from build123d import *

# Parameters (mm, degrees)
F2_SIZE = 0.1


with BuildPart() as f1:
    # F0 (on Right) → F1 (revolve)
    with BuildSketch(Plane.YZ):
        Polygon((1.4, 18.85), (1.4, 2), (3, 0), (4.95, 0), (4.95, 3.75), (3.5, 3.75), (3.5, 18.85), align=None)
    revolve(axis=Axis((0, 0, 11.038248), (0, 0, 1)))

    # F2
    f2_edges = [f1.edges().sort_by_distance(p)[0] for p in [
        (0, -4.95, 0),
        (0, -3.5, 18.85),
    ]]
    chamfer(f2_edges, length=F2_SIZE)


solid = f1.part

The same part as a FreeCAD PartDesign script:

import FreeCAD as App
import Part
import Sketcher

V = App.Vector
Q = App.Units.Quantity


def edges_at(feature, points):
    """Names of the edges that pass closest to the given points."""
    edges = feature.Shape.Edges
    near = lambda p: min(range(len(edges)), key=lambda i: edges[i].distToShape(Part.Vertex(*p))[0])
    return sorted({f"Edge{near(p) + 1}" for p in points})

doc = App.newDocument("Part")
params = doc.addObject("Spreadsheet::Sheet", "Params")
for row, (alias, value) in enumerate([
    ("sketch1_width", "2.1 mm"),
    ("sketch1_height", "15.1 mm"),
    ("sketch1_width2", "1.95 mm"),
    ("sketch1_width3", "1.45 mm"),
    ("sketch1_height2", "16.85 mm"),
    ("revolution_angle", "360 deg"),
    ("chamfer_size", "0.1 mm"),
], start=1):
    params.set(f"A{row}", alias)
    params.set(f"B{row}", "=" + value)
    params.setAlias(f"B{row}", alias)

body = doc.addObject("PartDesign::Body", "Body")

# Sketch on YZ plane
sketch1 = body.newObject("Sketcher::SketchObject", "Sketch")
sketch1.AttachmentSupport = (doc.getObject("YZ_Plane"), [""])
sketch1.MapMode = "FlatFace"
sketch1.addGeometry([
    Part.LineSegment(V(1.4, 18.9, 0), V(1.4, 2, 0)),  # 0
    Part.LineSegment(V(1.4, 2, 0), V(3, 0, 0)),  # 1
    Part.LineSegment(V(3, 0, 0), V(5, 0, 0)),  # 2
    Part.LineSegment(V(5, 0, 0), V(5, 3.8, 0)),  # 3
    Part.LineSegment(V(5, 3.8, 0), V(3.5, 3.8, 0)),  # 4
    Part.LineSegment(V(3.5, 3.8, 0), V(3.5, 18.9, 0)),  # 5
    Part.LineSegment(V(3.5, 18.9, 0), V(1.4, 18.9, 0)),  # 6
], False)
sketch1.addConstraint([
    Sketcher.Constraint("Coincident", 0, 2, 1, 1),
    Sketcher.Constraint("Coincident", 1, 2, 2, 1),
    Sketcher.Constraint("Coincident", 2, 2, 3, 1),
    Sketcher.Constraint("Coincident", 3, 2, 4, 1),
    Sketcher.Constraint("Coincident", 4, 2, 5, 1),
    Sketcher.Constraint("Coincident", 5, 2, 6, 1),
    Sketcher.Constraint("Coincident", 6, 2, 0, 1),
    Sketcher.Constraint("Vertical", 0),
    Sketcher.Constraint("Horizontal", 2),
    Sketcher.Constraint("Vertical", 3),
    Sketcher.Constraint("Horizontal", 4),
    Sketcher.Constraint("Vertical", 5),
    Sketcher.Constraint("Horizontal", 6),
    Sketcher.Constraint("PointOnObject", 1, 2, -1),
    Sketcher.Constraint("DistanceX", 6, 2, 6, 1, Q("2.1 mm")),
    Sketcher.Constraint("DistanceY", 5, 1, 5, 2, Q("15.1 mm")),
    Sketcher.Constraint("DistanceY", -1, 1, 0, 2, Q("2 mm")),
    Sketcher.Constraint("DistanceX", -1, 1, 1, 2, Q("3 mm")),
    Sketcher.Constraint("DistanceX", 2, 1, 2, 2, Q("1.95 mm")),
    Sketcher.Constraint("DistanceX", 4, 2, 4, 1, Q("1.45 mm")),
    Sketcher.Constraint("DistanceY", 0, 2, 0, 1, Q("16.85 mm")),
])
sketch1.setExpression("Constraints[14]", "Params.sketch1_width")
sketch1.setExpression("Constraints[15]", "Params.sketch1_height")
sketch1.setExpression("Constraints[18]", "Params.sketch1_width2")
sketch1.setExpression("Constraints[19]", "Params.sketch1_width3")
sketch1.setExpression("Constraints[20]", "Params.sketch1_height2")
revolution = body.newObject("PartDesign::Revolution", "Revolution")
revolution.Profile = sketch1
revolution.ReferenceAxis = (sketch1, ["V_Axis"])
revolution.setExpression("Angle", "Params.revolution_angle")
doc.recompute()

chamfer = body.newObject("PartDesign::Chamfer", "Chamfer")
chamfer.Base = (revolution, edges_at(revolution, [(0, -4.95, 0), (0, -3.5, 18.85)]))
chamfer.setExpression("Size", "Params.chamfer_size")

doc.recompute()
